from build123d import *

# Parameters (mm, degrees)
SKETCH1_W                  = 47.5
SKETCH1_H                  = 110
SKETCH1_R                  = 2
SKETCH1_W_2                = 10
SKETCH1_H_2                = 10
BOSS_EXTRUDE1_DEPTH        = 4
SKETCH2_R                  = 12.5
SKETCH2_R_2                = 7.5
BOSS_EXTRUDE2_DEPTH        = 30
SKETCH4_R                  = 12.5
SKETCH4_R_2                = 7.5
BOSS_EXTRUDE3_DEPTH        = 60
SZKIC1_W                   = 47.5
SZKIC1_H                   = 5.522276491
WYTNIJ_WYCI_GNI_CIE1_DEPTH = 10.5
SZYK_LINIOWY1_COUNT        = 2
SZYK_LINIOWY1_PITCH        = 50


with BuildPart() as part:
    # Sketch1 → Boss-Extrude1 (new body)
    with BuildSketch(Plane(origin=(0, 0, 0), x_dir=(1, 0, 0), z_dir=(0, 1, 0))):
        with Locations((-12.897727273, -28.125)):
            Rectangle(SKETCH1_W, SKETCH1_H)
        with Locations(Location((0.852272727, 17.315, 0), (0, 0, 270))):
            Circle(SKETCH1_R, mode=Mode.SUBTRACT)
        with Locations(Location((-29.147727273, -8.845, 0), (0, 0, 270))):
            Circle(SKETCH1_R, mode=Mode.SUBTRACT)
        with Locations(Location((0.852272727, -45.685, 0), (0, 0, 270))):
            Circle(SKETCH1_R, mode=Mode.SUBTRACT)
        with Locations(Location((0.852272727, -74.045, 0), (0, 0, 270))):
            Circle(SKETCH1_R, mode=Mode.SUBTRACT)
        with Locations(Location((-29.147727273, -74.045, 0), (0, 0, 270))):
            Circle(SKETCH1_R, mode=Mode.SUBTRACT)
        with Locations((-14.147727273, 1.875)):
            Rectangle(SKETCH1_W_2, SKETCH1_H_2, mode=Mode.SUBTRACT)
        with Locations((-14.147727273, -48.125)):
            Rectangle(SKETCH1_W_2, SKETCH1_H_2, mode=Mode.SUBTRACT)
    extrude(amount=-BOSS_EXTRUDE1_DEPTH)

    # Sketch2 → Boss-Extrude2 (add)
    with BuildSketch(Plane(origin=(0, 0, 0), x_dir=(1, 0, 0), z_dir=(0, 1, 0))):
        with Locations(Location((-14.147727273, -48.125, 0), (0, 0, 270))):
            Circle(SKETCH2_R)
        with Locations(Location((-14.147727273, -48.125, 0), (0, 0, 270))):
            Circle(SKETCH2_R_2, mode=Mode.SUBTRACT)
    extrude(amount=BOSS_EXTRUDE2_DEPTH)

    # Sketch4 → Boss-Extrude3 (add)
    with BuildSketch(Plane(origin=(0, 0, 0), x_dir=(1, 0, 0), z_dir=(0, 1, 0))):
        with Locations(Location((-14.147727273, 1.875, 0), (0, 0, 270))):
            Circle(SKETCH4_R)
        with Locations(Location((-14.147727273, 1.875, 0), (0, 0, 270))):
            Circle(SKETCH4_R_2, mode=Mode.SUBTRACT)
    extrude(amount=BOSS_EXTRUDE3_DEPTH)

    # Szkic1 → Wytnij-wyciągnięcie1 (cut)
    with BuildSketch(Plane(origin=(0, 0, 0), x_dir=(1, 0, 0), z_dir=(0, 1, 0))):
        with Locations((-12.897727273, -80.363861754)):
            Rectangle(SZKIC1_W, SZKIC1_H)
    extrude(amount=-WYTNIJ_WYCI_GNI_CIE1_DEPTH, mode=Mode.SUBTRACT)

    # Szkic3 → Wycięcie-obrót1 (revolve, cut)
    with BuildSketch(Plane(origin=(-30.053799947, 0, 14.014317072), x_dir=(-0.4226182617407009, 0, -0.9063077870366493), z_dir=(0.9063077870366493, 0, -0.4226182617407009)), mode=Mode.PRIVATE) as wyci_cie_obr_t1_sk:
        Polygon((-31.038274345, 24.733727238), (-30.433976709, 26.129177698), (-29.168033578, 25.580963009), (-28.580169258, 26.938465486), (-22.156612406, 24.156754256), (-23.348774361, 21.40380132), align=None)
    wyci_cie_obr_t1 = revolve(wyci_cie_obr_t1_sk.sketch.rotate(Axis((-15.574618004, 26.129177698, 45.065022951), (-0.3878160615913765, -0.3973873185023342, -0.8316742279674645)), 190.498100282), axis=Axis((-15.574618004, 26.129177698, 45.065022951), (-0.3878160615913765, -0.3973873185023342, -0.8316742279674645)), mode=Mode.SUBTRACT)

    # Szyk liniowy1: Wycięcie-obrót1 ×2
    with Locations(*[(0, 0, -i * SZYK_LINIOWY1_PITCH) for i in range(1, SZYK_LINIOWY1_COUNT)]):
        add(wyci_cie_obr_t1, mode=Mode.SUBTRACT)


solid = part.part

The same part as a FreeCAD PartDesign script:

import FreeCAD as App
import Part
import Sketcher

V = App.Vector
Q = App.Units.Quantity


def add_polygon(sketch, points):
    """Adds a closed chain of lines whose ends are joined by coincident constraints."""
    first, n = sketch.GeometryCount, len(points)
    for a, b in zip(points, points[1:] + points[:1]):
        sketch.addGeometry(Part.LineSegment(App.Vector(*a, 0), App.Vector(*b, 0)), False)
    for i in range(n):
        sketch.addConstraint(Sketcher.Constraint("Coincident", first + i, 2, first + (i + 1) % n, 1))

doc = App.newDocument("Part")
params = doc.addObject("Spreadsheet::Sheet", "Params")
for row, (alias, value) in enumerate([
    ("sketch1_diameter", "4 mm"),
    ("sketch1_width", "10 mm"),
    ("sketch1_height", "110 mm"),
    ("sketch1_width2", "47.5 mm"),
    ("pad1_length", "4 mm"),
    ("sketch2_diameter", "25 mm"),
    ("sketch2_diameter2", "15 mm"),
    ("pad2_length", "30 mm"),
    ("sketch3_diameter", "25 mm"),
    ("sketch3_diameter2", "15 mm"),
    ("pad3_length", "60 mm"),
    ("sketch4_width", "47.5 mm"),
    ("pocket1_length", "10.5 mm"),
    ("sketch5_length", "3 mm"),
    ("sketch5_length2", "7 mm"),
    ("groove_angle", "360 deg"),
    ("linearpattern_pitch", "50 mm"),
], start=1):
    params.set(f"A{row}", alias)
    params.set(f"B{row}", "=" + value)
    params.setAlias(f"B{row}", alias)

body = doc.addObject("PartDesign::Body", "Body")

sketch1 = body.newObject("Sketcher::SketchObject", "Sketch")
sketch1.AttachmentSupport = (doc.getObject("XZ_Plane"), [""])
sketch1.MapMode = "FlatFace"
add_polygon(sketch1, [(-36.6, -26.9), (-36.6, 83.1), (10.9, 83.1), (10.9, -26.9)])
sketch1.addGeometry(Part.Circle(V(-29.1, 74, 0), V(0, 0, 1), 2), False)
sketch1.addGeometry(Part.Circle(V(0.9, 74, 0), V(0, 0, 1), 2), False)
add_polygon(sketch1, [(-9.1, 53.1), (-19.1, 53.1), (-19.1, 43.1), (-9.1, 43.1)])
sketch1.addGeometry(Part.Circle(V(0.9, 45.7, 0), V(0, 0, 1), 2), False)
sketch1.addGeometry(Part.Circle(V(-29.1, 8.8, 0), V(0, 0, 1), 2), False)
add_polygon(sketch1, [(-9.1, 3.1), (-19.1, 3.1), (-19.1, -6.9), (-9.1, -6.9)])
sketch1.addGeometry(Part.Circle(V(0.9, -17.3, 0), V(0, 0, 1), 2), False)
sketch1.addConstraint([
    Sketcher.Constraint("Vertical", 0),
    Sketcher.Constraint("Horizontal", 1),
    Sketcher.Constraint("Vertical", 2),
    Sketcher.Constraint("Horizontal", 3),
    Sketcher.Constraint("Horizontal", 6),
    Sketcher.Constraint("Vertical", 7),
    Sketcher.Constraint("Horizontal", 8),
    Sketcher.Constraint("Vertical", 9),
    Sketcher.Constraint("Horizontal", 12),
    Sketcher.Constraint("Vertical", 13),
    Sketcher.Constraint("Horizontal", 14),
    Sketcher.Constraint("Vertical", 15),
    Sketcher.Constraint("Equal", 4, 5),
    Sketcher.Constraint("Equal", 5, 10),
    Sketcher.Constraint("Equal", 10, 11),
    Sketcher.Constraint("Equal", 11, 16),
    Sketcher.Constraint("Horizontal", 4, 3, 5, 3),
    Sketcher.Constraint("Vertical", 5, 3, 10, 3),
    Sketcher.Constraint("Vertical", 4, 3, 11, 3),
    Sketcher.Constraint("Vertical", 10, 3, 16, 3),
    Sketcher.Constraint("Vertical", 7, 2, 12, 2),
    Sketcher.Constraint("Vertical", 9, 2, 14, 2),
    Sketcher.Constraint("Equal", 14, 7),
    Sketcher.Constraint("Equal", 9, 13),
    Sketcher.Constraint("Diameter", 4, Q("4 mm")),
    Sketcher.Constraint("DistanceX", 6, 2, 6, 1, Q("10 mm")),
    Sketcher.Constraint("DistanceY", 0, 1, 0, 2, Q("110 mm")),
    Sketcher.Constraint("DistanceX", 1, 1, 1, 2, Q("47.5 mm")),
    Sketcher.Constraint("DistanceX", 4, 3, 5, 3, Q("30 mm")),
    Sketcher.Constraint("DistanceY", 16, 3, 10, 3, Q("63 mm")),
    Sketcher.Constraint("DistanceX", 5, 3, 1, 2, Q("10 mm")),
    Sketcher.Constraint("DistanceX", 6, 2, 10, 3, Q("20 mm")),
    Sketcher.Constraint("DistanceY", 6, 2, 0, 2, Q("30 mm")),
    Sketcher.Constraint("DistanceY", 3, 2, 12, 2, Q("30 mm")),
    Sketcher.Constraint("DistanceY", 11, 3, 4, 3, Q("65.2 mm")),
    Sketcher.Constraint("DistanceY", 10, 3, 5, 3, Q("28.36 mm")),
    Sketcher.Constraint("DistanceY", 4, 3, 0, 2, Q("9.08 mm")),
    Sketcher.Constraint("DistanceY", -1, 1, 4, 3, Q("74.045 mm")),
    Sketcher.Constraint("DistanceX", 4, 3, -1, 1, Q("29.147727 mm")),
])
sketch1.setExpression("Constraints[36]", "Params.sketch1_diameter")
sketch1.setExpression("Constraints[37]", "Params.sketch1_width")
sketch1.setExpression("Constraints[38]", "Params.sketch1_height")
sketch1.setExpression("Constraints[39]", "Params.sketch1_width2")
pad1 = body.newObject("PartDesign::Pad", "Pad")
pad1.Profile = sketch1
pad1.setExpression("Length", "Params.pad1_length")

sketch2 = body.newObject("Sketcher::SketchObject", "Sketch001")
sketch2.AttachmentSupport = (doc.getObject("XZ_Plane"), [""])
sketch2.MapMode = "FlatFace"
sketch2.addGeometry([
    Part.Circle(V(-14, 48, 0), V(0, 0, 1), 12),
    Part.Circle(V(-14, 48, 0), V(0, 0, 1), 8),
], False)
sketch2.addConstraint([
    Sketcher.Constraint("Coincident", 1, 3, 0, 3),
    Sketcher.Constraint("Diameter", 0, Q("25 mm")),
    Sketcher.Constraint("Diameter", 1, Q("15 mm")),
    Sketcher.Constraint("DistanceY", -1, 1, 0, 3, Q("48.125 mm")),
    Sketcher.Constraint("DistanceX", 0, 3, -1, 1, Q("14.147727 mm")),
])
sketch2.setExpression("Constraints[1]", "Params.sketch2_diameter")
sketch2.setExpression("Constraints[2]", "Params.sketch2_diameter2")
pad2 = body.newObject("PartDesign::Pad", "Pad001")
pad2.Profile = sketch2
pad2.setExpression("Length", "Params.pad2_length")
pad2.Reversed = True

sketch3 = body.newObject("Sketcher::SketchObject", "Sketch002")
sketch3.AttachmentSupport = (doc.getObject("XZ_Plane"), [""])
sketch3.MapMode = "FlatFace"
sketch3.addGeometry([
    Part.Circle(V(-14, -2, 0), V(0, 0, 1), 12),
    Part.Circle(V(-14, -2, 0), V(0, 0, 1), 8),
], False)
sketch3.addConstraint([
    Sketcher.Constraint("Coincident", 1, 3, 0, 3),
    Sketcher.Constraint("Diameter", 0, Q("25 mm")),
    Sketcher.Constraint("Diameter", 1, Q("15 mm")),
    Sketcher.Constraint("DistanceY", 0, 3, -1, 1, Q("1.875 mm")),
    Sketcher.Constraint("DistanceX", 0, 3, -1, 1, Q("14.147727 mm")),
])
sketch3.setExpression("Constraints[1]", "Params.sketch3_diameter")
sketch3.setExpression("Constraints[2]", "Params.sketch3_diameter2")
pad3 = body.newObject("PartDesign::Pad", "Pad002")
pad3.Profile = sketch3
pad3.setExpression("Length", "Params.pad3_length")
pad3.Reversed = True

sketch4 = body.newObject("Sketcher::SketchObject", "Sketch003")
sketch4.AttachmentSupport = (doc.getObject("XZ_Plane"), [""])
sketch4.MapMode = "FlatFace"
add_polygon(sketch4, [(-37, 78), (-37, 83), (11, 83), (11, 78)])
sketch4.addConstraint([
    Sketcher.Constraint("Vertical", 0),
    Sketcher.Constraint("Horizontal", 1),
    Sketcher.Constraint("Vertical", 2),
    Sketcher.Constraint("Horizontal", 3),
    Sketcher.Constraint("DistanceX", 1, 1, 1, 2, Q("47.5 mm")),
    Sketcher.Constraint("DistanceY", -1, 1, 0, 2, Q("83.125 mm")),
    Sketcher.Constraint("DistanceY", 0, 1, 0, 2, Q("5.522276 mm")),
    Sketcher.Constraint("DistanceX", 0, 2, -1, 1, Q("36.647727 mm")),
])
sketch4.setExpression("Constraints[8]", "Params.sketch4_width")
pocket1 = body.newObject("PartDesign::Pocket", "Pocket")
pocket1.Profile = sketch4
pocket1.setExpression("Length", "Params.pocket1_length")
pocket1.Reversed = True

sketch5 = body.newObject("Sketcher::SketchObject", "Sketch004")
sketch5.Placement = App.Placement(V(-30.0538, 0, 14.014317), App.Rotation(V(-0.422618262, 0, -0.906307787), V(0, 1, 0), V(0.906307787, 0, -0.422618262), "ZXY"))
add_polygon(sketch5, [(-30.4, 26.1), (-31, 24.7), (-23.3, 21.4), (-22.2, 24.2), (-28.6, 26.9), (-29.2, 25.6)])
sketch5.addGeometry(Part.LineSegment(V(-31, 24.7, 0), V(-23.3, 21.4, 0)), True)
sketch5.addConstraint([
    Sketcher.Constraint("Coincident", 6, 1, 0, 2),
    Sketcher.Constraint("Coincident", 6, 2, 1, 2),
    Sketcher.Constraint("Perpendicular", 0, 1),
    Sketcher.Constraint("Perpendicular", 1, 2),
    Sketcher.Constraint("Perpendicular", 2, 3),
    Sketcher.Constraint("Perpendicular", 3, 4),
    Sketcher.Constraint("Perpendicular", 4, 5),
    Sketcher.Constraint("Distance", 2, Q("3 mm")),
    Sketcher.Constraint("Distance", 3, Q("7 mm")),
    Sketcher.Constraint("DistanceY", -1, 1, 1, 2, Q("21.403801 mm")),
    Sketcher.Constraint("DistanceX", 0, 2, 1, 2, Q("7.6895 mm")),
    Sketcher.Constraint("DistanceX", 3, 2, -1, 1, Q("28.580169 mm")),
    Sketcher.Constraint("DistanceX", 1, 2, 2, 2, Q("1.192162 mm")),
    Sketcher.Constraint("DistanceX", 0, 2, 4, 2, Q("1.870241 mm")),
])
sketch5.setExpression("Constraints[13]", "Params.sketch5_length")
sketch5.setExpression("Constraints[14]", "Params.sketch5_length2")
groove = body.newObject("PartDesign::Groove", "Groove")
groove.Profile = sketch5
groove.ReferenceAxis = (sketch5, ["Axis0"])
groove.setExpression("Angle", "Params.groove_angle")
doc.recompute()

linearpattern = body.newObject("PartDesign::LinearPattern", "LinearPattern")
linearpattern.Originals = [groove]
linearpattern.Direction = (doc.getObject("Z_Axis"), [""])
linearpattern.Mode = "offset"
linearpattern.setExpression("Offset", "Params.linearpattern_pitch")
linearpattern.Occurrences = 2
linearpattern.Reversed = True
body.Tip = linearpattern

doc.recompute()
